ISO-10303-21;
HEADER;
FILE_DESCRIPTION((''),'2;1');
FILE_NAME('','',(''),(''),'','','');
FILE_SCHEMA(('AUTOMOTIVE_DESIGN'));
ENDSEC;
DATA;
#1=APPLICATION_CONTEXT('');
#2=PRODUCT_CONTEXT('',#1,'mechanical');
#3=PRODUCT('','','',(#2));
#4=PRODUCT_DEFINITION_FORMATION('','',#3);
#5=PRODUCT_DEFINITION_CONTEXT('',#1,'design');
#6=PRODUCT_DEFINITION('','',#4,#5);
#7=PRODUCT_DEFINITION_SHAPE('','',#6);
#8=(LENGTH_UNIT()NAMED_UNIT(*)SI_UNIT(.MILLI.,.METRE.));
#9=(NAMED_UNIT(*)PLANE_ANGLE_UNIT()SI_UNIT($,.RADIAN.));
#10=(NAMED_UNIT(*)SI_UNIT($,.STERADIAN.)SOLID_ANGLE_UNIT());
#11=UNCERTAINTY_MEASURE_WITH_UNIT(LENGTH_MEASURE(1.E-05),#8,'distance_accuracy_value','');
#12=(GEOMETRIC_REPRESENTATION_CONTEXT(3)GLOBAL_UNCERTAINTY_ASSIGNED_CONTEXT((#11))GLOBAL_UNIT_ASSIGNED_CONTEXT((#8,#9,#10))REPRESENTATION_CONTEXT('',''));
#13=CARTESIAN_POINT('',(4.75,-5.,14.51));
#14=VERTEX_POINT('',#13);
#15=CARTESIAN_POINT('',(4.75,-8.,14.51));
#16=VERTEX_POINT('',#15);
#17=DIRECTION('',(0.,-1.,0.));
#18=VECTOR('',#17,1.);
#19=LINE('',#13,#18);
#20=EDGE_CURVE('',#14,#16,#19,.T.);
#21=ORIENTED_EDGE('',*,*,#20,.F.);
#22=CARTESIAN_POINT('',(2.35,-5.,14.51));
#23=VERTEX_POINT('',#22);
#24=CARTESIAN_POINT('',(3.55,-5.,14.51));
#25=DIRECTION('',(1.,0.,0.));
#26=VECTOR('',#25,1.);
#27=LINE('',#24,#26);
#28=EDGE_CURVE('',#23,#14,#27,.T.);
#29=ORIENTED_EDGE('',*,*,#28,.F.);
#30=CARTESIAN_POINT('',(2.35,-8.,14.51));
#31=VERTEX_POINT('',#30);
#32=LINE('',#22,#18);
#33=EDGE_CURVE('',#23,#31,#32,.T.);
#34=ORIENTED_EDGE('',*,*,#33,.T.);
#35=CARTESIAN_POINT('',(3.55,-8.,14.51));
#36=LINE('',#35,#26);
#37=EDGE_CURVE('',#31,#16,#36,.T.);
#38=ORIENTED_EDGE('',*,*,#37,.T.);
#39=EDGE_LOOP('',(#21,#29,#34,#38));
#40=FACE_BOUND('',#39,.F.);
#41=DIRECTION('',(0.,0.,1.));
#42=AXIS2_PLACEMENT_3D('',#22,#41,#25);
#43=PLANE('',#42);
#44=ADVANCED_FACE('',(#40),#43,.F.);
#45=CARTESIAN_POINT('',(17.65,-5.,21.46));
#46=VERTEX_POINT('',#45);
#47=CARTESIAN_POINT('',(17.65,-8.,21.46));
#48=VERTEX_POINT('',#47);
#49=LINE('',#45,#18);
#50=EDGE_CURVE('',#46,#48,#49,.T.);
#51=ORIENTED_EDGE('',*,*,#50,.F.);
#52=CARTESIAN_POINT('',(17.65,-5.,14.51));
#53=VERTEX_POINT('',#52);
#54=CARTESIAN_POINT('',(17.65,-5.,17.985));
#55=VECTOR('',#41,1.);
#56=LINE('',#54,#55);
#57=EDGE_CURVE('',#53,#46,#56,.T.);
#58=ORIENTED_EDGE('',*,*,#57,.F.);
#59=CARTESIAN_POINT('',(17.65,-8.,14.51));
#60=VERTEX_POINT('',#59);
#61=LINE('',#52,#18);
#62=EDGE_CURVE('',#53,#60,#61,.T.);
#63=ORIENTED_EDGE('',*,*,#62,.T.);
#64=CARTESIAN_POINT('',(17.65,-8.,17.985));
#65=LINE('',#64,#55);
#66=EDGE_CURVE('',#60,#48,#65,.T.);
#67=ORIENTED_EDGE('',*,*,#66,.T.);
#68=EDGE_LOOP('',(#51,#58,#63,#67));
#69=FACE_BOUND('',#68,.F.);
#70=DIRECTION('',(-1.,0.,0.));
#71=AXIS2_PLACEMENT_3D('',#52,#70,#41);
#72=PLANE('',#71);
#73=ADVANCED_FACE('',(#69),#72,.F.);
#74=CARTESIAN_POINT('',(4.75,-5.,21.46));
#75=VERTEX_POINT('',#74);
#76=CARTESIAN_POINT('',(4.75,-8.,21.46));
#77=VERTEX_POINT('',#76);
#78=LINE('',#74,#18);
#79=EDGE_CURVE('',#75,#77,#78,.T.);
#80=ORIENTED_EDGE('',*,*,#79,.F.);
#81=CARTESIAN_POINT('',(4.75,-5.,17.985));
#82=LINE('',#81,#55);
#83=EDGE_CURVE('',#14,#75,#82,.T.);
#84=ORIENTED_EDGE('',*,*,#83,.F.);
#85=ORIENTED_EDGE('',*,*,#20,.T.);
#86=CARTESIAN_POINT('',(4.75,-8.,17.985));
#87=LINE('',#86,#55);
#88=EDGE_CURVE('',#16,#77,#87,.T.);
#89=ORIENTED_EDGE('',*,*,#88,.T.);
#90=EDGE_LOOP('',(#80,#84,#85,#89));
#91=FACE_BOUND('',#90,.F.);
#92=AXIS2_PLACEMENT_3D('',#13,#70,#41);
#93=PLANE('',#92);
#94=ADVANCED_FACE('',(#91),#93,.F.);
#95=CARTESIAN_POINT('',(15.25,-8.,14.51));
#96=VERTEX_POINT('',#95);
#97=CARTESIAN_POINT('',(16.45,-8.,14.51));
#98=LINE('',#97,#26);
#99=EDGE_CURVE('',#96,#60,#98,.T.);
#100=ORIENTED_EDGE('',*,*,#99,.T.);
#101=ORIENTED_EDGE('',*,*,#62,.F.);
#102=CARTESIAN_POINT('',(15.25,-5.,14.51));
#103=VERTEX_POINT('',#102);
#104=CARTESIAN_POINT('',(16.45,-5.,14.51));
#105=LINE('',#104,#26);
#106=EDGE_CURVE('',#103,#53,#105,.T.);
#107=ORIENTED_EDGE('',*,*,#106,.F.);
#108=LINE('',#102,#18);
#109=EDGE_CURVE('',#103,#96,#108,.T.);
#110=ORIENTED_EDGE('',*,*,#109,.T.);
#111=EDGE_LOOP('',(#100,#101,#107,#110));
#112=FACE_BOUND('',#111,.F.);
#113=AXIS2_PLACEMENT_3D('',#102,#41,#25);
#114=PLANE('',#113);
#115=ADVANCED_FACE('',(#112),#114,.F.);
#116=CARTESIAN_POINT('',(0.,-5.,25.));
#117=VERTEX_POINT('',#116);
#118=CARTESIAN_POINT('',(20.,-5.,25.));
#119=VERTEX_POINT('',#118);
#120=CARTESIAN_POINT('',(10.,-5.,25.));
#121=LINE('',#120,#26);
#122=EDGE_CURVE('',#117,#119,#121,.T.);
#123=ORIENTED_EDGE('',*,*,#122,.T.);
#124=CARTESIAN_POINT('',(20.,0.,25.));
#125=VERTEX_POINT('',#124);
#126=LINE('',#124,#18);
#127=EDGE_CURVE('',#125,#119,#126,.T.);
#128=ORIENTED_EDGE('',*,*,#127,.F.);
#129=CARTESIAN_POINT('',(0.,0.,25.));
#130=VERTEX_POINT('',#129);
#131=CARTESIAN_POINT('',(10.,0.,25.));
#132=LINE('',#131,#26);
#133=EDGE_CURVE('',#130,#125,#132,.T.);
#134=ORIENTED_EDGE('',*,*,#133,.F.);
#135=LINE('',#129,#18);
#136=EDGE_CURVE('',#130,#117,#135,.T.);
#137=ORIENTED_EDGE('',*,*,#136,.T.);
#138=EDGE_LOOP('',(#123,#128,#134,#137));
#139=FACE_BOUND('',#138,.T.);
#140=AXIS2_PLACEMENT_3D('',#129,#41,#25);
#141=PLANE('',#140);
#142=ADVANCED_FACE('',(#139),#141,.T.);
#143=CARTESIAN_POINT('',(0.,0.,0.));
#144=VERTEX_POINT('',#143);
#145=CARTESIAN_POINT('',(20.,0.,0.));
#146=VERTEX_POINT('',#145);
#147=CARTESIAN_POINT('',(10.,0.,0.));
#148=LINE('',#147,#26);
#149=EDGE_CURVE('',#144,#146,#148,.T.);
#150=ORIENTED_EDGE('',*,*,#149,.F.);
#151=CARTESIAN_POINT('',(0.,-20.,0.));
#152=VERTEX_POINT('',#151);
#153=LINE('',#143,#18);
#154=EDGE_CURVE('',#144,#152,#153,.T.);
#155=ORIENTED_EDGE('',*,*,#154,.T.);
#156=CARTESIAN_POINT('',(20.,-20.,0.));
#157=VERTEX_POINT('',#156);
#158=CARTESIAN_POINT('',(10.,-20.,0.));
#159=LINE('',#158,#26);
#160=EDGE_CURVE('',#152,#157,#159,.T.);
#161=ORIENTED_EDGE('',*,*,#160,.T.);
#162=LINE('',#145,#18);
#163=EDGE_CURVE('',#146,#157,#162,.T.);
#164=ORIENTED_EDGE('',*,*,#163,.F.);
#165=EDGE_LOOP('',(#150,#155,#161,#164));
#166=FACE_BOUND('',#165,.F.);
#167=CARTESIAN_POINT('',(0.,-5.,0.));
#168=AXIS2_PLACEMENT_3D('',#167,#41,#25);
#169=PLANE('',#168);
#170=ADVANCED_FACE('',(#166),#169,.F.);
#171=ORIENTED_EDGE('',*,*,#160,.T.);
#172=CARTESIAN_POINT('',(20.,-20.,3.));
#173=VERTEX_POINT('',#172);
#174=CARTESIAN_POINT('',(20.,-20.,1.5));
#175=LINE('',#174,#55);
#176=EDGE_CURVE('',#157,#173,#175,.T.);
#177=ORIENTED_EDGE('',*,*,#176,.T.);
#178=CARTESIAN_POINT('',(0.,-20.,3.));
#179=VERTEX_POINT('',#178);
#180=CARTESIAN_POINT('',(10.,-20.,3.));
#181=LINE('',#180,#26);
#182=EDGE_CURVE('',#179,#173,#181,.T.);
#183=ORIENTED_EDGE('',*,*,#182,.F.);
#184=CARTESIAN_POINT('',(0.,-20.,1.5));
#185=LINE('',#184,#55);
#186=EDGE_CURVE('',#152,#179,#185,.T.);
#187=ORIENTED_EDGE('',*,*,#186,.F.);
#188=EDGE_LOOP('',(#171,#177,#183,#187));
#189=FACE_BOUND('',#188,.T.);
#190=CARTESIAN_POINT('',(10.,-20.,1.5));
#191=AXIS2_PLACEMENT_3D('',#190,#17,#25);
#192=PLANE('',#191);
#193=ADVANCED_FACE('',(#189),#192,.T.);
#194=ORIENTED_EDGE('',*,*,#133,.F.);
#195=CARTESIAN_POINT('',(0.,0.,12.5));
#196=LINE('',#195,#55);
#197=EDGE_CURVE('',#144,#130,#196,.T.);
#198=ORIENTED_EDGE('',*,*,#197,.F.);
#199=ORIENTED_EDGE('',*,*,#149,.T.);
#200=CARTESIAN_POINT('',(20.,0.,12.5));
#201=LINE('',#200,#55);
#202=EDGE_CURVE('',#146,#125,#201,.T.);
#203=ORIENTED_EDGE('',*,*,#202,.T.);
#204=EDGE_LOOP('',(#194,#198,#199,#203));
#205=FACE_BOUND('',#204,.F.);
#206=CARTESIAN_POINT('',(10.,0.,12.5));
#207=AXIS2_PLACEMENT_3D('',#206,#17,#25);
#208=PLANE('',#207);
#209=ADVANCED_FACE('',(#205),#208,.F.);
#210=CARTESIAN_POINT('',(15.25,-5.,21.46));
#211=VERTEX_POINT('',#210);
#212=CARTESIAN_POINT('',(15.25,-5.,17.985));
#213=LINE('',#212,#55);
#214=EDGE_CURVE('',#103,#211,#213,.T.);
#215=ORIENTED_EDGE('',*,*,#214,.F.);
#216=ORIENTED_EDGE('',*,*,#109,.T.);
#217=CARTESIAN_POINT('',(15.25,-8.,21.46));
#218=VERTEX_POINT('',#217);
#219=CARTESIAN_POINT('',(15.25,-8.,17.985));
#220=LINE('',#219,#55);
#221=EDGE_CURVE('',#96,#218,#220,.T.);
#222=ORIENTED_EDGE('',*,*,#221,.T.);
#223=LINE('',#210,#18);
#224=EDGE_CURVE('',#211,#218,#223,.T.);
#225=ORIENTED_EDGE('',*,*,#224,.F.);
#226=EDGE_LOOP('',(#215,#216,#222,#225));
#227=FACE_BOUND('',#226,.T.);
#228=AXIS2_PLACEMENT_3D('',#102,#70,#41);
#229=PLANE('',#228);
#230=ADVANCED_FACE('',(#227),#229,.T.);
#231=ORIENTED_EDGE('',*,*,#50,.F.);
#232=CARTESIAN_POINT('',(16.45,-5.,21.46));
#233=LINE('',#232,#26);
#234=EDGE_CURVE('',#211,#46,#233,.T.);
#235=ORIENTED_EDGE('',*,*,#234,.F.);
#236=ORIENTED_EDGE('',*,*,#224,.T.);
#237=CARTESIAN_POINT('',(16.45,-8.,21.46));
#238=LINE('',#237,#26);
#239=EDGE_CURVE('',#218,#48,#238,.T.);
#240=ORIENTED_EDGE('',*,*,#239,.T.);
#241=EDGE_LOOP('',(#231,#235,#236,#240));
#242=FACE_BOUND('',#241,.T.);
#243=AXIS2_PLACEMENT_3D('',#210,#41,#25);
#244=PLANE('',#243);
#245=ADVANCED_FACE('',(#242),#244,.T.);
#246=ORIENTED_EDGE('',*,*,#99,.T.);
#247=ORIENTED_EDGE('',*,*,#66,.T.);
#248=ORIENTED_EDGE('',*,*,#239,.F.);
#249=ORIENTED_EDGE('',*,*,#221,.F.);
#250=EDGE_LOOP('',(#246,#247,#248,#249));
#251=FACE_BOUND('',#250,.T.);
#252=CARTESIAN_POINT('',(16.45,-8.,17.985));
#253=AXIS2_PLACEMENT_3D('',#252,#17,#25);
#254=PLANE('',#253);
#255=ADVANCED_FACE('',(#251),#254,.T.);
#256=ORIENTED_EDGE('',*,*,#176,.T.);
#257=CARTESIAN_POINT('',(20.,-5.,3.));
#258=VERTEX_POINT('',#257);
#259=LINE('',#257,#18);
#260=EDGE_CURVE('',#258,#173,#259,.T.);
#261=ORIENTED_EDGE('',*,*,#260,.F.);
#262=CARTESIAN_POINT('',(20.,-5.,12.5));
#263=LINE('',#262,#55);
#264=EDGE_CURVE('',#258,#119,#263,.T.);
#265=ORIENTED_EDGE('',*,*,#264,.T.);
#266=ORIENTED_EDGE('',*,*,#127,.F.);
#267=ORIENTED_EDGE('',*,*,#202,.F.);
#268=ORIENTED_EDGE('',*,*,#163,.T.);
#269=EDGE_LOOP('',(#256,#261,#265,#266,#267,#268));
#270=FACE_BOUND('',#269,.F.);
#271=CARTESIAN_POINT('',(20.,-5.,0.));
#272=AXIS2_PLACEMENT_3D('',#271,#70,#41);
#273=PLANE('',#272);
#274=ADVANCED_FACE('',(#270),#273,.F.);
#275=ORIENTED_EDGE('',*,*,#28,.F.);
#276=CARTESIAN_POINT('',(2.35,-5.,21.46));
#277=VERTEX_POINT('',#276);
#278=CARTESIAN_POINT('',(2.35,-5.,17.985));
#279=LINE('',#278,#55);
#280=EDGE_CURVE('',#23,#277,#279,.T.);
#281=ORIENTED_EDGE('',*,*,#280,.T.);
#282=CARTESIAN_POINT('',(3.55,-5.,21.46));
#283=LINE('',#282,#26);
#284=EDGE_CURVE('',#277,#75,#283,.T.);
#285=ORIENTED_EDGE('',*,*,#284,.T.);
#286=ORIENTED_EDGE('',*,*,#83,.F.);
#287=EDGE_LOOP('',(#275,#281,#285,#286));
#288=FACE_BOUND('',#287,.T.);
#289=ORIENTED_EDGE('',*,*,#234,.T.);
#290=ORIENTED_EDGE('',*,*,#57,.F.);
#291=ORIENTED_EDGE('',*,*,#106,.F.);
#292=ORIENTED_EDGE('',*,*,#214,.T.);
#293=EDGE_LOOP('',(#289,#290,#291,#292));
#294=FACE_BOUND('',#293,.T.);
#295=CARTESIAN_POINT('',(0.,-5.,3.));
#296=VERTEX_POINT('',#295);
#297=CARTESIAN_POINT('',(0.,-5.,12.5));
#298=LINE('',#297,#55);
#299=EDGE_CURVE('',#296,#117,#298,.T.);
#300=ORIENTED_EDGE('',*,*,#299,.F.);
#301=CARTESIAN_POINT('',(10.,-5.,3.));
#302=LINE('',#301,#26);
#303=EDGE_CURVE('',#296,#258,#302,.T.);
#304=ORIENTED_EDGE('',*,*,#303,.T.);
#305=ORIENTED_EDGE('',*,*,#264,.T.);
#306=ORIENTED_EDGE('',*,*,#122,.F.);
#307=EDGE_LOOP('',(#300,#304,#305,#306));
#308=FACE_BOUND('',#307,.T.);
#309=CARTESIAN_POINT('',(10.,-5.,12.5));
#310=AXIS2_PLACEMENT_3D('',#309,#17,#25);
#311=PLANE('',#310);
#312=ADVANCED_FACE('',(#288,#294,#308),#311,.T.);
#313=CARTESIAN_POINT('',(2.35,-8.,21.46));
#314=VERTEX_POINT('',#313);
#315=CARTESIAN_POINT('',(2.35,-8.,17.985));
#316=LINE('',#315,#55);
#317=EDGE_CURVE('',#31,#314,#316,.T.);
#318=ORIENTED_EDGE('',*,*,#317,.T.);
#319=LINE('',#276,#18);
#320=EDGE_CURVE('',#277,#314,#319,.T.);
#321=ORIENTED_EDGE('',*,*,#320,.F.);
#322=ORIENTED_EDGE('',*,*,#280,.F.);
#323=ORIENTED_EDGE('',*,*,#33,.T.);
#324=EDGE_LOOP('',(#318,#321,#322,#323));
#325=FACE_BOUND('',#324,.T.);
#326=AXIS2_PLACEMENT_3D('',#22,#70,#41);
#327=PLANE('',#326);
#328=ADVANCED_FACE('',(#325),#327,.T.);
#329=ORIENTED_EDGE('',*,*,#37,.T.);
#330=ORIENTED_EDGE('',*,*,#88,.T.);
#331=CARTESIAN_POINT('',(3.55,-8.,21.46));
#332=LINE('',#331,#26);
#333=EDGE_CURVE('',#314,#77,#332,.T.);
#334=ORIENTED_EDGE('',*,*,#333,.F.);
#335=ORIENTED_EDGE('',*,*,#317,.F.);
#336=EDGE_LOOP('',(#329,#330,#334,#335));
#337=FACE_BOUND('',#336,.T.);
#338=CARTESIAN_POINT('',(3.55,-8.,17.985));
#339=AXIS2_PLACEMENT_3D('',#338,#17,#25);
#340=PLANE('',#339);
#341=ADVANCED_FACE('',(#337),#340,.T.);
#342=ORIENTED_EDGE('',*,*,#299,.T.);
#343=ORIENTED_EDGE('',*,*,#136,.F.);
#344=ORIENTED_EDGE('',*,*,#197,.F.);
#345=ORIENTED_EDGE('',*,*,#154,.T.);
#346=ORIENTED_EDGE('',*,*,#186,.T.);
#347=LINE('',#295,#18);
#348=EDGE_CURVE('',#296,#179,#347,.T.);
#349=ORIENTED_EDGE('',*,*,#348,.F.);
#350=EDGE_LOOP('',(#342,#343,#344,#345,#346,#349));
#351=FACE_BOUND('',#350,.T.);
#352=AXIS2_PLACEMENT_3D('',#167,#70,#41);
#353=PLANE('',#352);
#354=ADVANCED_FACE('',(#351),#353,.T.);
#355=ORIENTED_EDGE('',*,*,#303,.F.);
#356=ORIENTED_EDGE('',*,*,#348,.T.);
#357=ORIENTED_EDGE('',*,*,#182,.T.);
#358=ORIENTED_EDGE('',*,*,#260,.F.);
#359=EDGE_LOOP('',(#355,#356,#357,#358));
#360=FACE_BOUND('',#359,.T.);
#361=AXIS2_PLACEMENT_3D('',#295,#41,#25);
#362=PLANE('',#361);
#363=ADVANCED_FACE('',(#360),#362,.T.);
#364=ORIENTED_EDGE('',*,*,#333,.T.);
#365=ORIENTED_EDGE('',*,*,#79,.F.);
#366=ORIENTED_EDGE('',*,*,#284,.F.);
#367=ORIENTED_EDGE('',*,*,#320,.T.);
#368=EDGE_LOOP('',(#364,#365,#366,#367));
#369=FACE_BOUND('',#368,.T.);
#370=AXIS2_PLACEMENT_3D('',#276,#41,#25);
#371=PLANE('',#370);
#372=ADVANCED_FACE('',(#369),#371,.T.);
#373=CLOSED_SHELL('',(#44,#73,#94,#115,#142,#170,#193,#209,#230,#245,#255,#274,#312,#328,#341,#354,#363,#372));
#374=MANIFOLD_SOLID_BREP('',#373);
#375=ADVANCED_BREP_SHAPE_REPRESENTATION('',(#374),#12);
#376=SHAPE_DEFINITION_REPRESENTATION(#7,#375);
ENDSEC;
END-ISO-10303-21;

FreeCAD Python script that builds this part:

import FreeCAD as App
import Part
import Sketcher

V = App.Vector


def add_polygon(sketch, points):
    """Adds a closed chain of lines whose ends are joined by coincident constraints."""
    first, n = sketch.GeometryCount, len(points)
    for a, b in zip(points, points[1:] + points[:1]):
        sketch.addGeometry(Part.LineSegment(App.Vector(*a, 0), App.Vector(*b, 0)), False)
    for i in range(n):
        sketch.addConstraint(Sketcher.Constraint("Coincident", first + i, 2, first + (i + 1) % n, 1))

doc = App.newDocument("Part")
body = doc.addObject("PartDesign::Body", "Body")

# Sketch on XZ plane
sketch1 = doc.addObject("Sketcher::SketchObject", "Sketch")
body.addObject(sketch1)
sketch1.AttachmentSupport = (doc.XZ_Plane, [""])
sketch1.MapMode = "FlatFace"
add_polygon(sketch1, [(0, 25), (0, 0), (20, 0), (20, 25)])  # lines 0-3
sketch1.addConstraint([
    Sketcher.Constraint("Vertical", 0),
    Sketcher.Constraint("Horizontal", 1),
    Sketcher.Constraint("Vertical", 2),
    Sketcher.Constraint("Horizontal", 3),
    Sketcher.Constraint("Coincident", 0, 2, -1, 1),
    Sketcher.Constraint("DistanceX", 1, 1, 1, 2, 20.0),
    Sketcher.Constraint("DistanceY", 0, 2, 0, 1, 25.0),
])
pad1 = doc.addObject("PartDesign::Pad", "Pad")
body.addObject(pad1)
pad1.Profile = sketch1
pad1.Length = 5

# Sketch on XZ plane
sketch2 = doc.addObject("Sketcher::SketchObject", "Sketch001")
body.addObject(sketch2)
sketch2.AttachmentSupport = (doc.XZ_Plane, [""])
sketch2.MapMode = "FlatFace"
sketch2.AttachmentOffset = App.Placement(V(0, 0, 5), App.Rotation())
add_polygon(sketch2, [(0, 3), (0, 0), (20, 0), (20, 3)])  # lines 0-3
sketch2.addConstraint([
    Sketcher.Constraint("Vertical", 0),
    Sketcher.Constraint("Horizontal", 1),
    Sketcher.Constraint("Vertical", 2),
    Sketcher.Constraint("Horizontal", 3),
    Sketcher.Constraint("Coincident", 0, 2, -1, 1),
    Sketcher.Constraint("DistanceX", 1, 1, 1, 2, 20.0),
    Sketcher.Constraint("DistanceY", 0, 2, 0, 1, 3.0),
])
pad2 = doc.addObject("PartDesign::Pad", "Pad001")
body.addObject(pad2)
pad2.Profile = sketch2
pad2.Length = 15

# Sketch on XZ plane
sketch3 = doc.addObject("Sketcher::SketchObject", "Sketch002")
body.addObject(sketch3)
sketch3.AttachmentSupport = (doc.XZ_Plane, [""])
sketch3.MapMode = "FlatFace"
sketch3.AttachmentOffset = App.Placement(V(0, 0, 5), App.Rotation())
add_polygon(sketch3, [(2.4, 21.5), (2.4, 14.5), (4.8, 14.5), (4.8, 21.5)])  # lines 0-3
add_polygon(sketch3, [(15.2, 21.5), (15.2, 14.5), (17.6, 14.5), (17.6, 21.5)])  # lines 4-7
sketch3.addConstraint([
    Sketcher.Constraint("Vertical", 0),
    Sketcher.Constraint("Horizontal", 1),
    Sketcher.Constraint("Vertical", 2),
    Sketcher.Constraint("Horizontal", 3),
    Sketcher.Constraint("Vertical", 4),
    Sketcher.Constraint("Horizontal", 5),
    Sketcher.Constraint("Vertical", 6),
    Sketcher.Constraint("Horizontal", 7),
    Sketcher.Constraint("Horizontal", 1, 2, 4, 2),
    Sketcher.Constraint("Horizontal", 3, 2, 6, 2),
    Sketcher.Constraint("Equal", 3, 5),
    Sketcher.Constraint("DistanceX", 1, 1, 1, 2, 2.4),
    Sketcher.Constraint("DistanceY", 0, 2, 0, 1, 6.95),
    Sketcher.Constraint("DistanceX", 1, 2, 4, 2, 10.5),
    Sketcher.Constraint("DistanceX", -1, 1, 0, 2, 2.35),
    Sketcher.Constraint("DistanceY", -1, 1, 0, 2, 14.51),
])
pad3 = doc.addObject("PartDesign::Pad", "Pad002")
body.addObject(pad3)
pad3.Profile = sketch3
pad3.Length = 3

doc.recompute()
